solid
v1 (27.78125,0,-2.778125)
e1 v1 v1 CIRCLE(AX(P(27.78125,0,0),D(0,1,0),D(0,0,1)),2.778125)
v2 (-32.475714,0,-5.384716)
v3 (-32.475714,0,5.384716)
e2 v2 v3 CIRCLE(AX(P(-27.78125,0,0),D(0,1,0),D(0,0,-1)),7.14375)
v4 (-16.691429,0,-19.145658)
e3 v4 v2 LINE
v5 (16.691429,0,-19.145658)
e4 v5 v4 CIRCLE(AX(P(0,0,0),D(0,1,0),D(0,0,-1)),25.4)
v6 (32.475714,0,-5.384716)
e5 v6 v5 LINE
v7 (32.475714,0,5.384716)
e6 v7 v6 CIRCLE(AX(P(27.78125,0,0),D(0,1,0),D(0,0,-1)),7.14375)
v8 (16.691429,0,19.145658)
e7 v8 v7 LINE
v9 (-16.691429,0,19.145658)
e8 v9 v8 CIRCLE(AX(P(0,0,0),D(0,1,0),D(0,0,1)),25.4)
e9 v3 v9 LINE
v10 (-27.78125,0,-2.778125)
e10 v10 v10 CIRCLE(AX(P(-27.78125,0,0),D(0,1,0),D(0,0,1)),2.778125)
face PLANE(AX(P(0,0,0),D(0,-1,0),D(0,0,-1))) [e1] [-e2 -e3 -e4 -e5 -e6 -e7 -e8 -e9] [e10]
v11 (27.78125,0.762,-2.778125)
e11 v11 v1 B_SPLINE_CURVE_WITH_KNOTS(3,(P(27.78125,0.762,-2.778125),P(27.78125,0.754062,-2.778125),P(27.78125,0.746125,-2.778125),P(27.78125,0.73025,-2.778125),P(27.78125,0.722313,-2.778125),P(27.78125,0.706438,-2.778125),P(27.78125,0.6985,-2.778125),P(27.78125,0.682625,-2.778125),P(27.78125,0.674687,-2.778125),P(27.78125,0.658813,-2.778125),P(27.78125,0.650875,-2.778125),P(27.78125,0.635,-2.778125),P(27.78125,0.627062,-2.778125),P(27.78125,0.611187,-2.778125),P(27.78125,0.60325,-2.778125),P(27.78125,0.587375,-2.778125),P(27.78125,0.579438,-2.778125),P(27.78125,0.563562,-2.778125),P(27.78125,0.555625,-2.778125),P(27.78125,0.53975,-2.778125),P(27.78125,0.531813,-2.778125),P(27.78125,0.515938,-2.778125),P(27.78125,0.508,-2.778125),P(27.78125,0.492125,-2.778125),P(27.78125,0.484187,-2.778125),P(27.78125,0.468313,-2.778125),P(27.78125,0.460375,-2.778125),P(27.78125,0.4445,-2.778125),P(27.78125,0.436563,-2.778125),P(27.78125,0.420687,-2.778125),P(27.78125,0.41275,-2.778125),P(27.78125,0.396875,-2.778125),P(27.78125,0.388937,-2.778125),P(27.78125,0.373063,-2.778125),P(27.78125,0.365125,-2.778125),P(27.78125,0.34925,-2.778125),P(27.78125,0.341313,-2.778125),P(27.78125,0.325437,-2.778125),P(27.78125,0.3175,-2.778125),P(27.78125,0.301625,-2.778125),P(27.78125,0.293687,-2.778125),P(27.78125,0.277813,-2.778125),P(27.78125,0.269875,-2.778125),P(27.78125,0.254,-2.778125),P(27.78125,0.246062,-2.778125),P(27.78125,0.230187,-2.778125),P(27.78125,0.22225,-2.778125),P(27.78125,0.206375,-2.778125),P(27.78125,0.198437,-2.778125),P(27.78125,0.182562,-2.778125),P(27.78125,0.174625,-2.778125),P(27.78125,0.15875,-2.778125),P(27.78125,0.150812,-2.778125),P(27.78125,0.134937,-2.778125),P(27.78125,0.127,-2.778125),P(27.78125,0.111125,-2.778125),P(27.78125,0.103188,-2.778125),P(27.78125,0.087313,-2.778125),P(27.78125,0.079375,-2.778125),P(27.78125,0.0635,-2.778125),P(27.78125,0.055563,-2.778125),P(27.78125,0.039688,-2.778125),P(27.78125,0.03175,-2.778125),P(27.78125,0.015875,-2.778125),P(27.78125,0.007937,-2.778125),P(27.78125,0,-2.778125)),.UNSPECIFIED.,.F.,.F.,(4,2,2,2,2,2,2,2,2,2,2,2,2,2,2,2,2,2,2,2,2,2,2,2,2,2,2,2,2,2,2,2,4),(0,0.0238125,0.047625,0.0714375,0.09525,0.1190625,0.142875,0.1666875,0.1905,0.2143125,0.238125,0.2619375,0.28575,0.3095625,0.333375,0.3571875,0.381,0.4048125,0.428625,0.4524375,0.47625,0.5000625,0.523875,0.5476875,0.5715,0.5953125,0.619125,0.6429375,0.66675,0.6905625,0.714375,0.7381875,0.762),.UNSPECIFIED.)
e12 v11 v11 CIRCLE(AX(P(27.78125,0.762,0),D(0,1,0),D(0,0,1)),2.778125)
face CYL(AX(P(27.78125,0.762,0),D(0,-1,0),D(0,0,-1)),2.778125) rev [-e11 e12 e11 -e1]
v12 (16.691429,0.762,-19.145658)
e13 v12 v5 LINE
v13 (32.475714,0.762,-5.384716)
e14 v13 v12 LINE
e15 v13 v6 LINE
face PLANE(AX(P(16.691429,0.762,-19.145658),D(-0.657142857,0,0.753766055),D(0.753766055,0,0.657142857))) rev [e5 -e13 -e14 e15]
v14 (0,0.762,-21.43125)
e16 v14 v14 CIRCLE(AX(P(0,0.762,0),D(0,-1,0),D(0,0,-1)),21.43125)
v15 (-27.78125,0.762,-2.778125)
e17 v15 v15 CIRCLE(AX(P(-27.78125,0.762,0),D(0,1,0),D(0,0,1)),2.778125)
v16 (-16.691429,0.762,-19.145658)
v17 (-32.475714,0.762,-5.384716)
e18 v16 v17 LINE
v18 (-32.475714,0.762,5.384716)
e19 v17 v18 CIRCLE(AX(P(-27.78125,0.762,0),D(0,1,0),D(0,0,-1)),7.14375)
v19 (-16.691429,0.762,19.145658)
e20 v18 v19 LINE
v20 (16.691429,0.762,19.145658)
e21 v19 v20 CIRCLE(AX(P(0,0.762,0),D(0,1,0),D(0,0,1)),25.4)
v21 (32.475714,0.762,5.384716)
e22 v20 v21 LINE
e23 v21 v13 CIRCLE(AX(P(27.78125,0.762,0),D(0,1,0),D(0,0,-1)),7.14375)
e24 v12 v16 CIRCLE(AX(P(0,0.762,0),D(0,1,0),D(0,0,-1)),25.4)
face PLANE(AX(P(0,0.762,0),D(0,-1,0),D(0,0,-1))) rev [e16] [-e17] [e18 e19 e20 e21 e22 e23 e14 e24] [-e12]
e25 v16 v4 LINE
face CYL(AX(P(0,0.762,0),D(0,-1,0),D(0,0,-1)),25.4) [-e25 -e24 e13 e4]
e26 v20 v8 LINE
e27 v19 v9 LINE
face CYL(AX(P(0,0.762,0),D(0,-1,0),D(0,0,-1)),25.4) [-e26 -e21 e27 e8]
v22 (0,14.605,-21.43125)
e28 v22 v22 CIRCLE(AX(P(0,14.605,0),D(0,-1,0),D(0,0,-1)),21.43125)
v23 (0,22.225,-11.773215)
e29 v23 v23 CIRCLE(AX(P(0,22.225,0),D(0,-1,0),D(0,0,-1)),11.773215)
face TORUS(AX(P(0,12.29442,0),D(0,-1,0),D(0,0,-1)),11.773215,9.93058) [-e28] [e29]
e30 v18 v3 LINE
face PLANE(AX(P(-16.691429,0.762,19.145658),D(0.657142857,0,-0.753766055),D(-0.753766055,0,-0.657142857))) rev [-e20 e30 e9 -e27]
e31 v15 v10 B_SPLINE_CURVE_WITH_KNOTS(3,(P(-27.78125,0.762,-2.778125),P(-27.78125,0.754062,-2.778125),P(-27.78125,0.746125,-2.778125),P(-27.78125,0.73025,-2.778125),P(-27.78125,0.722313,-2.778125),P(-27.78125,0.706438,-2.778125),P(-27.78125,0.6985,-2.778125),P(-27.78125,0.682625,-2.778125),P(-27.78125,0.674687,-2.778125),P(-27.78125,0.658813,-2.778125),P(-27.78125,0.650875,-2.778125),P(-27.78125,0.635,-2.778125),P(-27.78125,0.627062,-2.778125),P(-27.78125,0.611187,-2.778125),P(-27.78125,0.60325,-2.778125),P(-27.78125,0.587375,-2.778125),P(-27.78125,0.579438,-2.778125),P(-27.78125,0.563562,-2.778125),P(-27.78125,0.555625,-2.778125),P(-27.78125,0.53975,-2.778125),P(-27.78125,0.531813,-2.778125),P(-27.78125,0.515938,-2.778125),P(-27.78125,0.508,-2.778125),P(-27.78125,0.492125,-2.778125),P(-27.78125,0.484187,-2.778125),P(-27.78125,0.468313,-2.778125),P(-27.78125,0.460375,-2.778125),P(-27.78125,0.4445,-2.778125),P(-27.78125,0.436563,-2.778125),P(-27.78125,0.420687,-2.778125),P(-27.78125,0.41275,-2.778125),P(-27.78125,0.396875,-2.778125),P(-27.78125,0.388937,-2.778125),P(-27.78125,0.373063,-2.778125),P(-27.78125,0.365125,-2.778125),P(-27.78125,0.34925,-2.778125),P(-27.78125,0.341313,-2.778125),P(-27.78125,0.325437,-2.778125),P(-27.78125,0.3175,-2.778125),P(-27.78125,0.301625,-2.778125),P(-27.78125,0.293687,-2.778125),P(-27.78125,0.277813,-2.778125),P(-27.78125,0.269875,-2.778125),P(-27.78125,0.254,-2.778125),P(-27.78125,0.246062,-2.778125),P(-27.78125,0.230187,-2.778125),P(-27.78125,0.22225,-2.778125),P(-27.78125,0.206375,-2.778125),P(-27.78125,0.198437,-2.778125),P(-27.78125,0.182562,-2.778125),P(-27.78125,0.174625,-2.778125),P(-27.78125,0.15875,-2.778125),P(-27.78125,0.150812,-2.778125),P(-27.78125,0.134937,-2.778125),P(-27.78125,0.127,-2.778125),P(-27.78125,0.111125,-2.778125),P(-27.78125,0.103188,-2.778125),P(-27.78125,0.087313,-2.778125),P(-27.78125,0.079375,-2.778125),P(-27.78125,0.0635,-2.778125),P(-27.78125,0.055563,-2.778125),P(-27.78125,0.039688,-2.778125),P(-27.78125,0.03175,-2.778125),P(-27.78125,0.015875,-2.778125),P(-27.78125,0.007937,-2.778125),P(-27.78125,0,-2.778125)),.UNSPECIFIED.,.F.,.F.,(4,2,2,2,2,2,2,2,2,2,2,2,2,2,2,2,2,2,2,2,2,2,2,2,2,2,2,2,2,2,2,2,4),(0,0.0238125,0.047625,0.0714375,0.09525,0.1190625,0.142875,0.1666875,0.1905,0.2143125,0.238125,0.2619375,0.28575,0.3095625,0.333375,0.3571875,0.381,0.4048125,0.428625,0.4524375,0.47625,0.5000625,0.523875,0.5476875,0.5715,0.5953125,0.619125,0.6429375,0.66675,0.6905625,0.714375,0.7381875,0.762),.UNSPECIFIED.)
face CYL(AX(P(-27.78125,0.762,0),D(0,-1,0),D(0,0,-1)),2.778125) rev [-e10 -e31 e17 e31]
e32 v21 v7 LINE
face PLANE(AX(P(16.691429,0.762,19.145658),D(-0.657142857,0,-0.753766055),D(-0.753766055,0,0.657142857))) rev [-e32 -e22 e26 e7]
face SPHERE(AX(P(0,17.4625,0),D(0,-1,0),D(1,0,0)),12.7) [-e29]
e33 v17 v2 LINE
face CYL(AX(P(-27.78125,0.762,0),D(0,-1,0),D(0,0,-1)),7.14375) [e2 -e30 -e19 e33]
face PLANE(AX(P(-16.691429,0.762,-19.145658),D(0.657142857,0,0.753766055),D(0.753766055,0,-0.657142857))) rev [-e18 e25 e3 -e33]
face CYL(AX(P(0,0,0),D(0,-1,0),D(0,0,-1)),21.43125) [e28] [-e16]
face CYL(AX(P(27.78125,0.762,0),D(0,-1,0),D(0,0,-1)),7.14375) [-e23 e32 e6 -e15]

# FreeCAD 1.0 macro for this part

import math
import FreeCAD as App
import Part
import Sketcher
Q = App.Units.Quantity

doc = App.newDocument("Part")
body = doc.addObject("PartDesign::Body", "Body")

# Sketch on XZ plane
sketch1 = body.newObject("Sketcher::SketchObject", "Sketch")
sketch1.AttachmentSupport = (doc.getObject("XZ_Plane"), [""])
sketch1.MapMode = "FlatFace"
sketch1.addGeometry(Part.LineSegment(App.Vector(-16.7, -19.1, 0), App.Vector(-32.5, -5.4, 0)), False)
sketch1.addGeometry(Part.ArcOfCircle(Part.Circle(App.Vector(-27.8, 0, 0), App.Vector(0, 0, 1), 7.1), math.radians(131), math.radians(229)), False)
sketch1.addGeometry(Part.LineSegment(App.Vector(-32.5, 5.4, 0), App.Vector(-16.7, 19.1, 0)), False)
sketch1.addGeometry(Part.ArcOfCircle(Part.Circle(App.Vector(0, 0, 0), App.Vector(0, 0, 1), 25.4), math.radians(49), math.radians(131)), False)
sketch1.addGeometry(Part.LineSegment(App.Vector(16.7, 19.1, 0), App.Vector(32.5, 5.4, 0)), False)
sketch1.addGeometry(Part.ArcOfCircle(Part.Circle(App.Vector(27.8, 0, 0), App.Vector(0, 0, 1), 7.1), math.radians(-49), math.radians(49)), False)
sketch1.addGeometry(Part.LineSegment(App.Vector(32.5, -5.4, 0), App.Vector(16.7, -19.1, 0)), False)
sketch1.addGeometry(Part.ArcOfCircle(Part.Circle(App.Vector(0, 0, 0), App.Vector(0, 0, 1), 25.4), math.radians(-131), math.radians(-49)), False)
sketch1.addGeometry(Part.Circle(App.Vector(-27.8, 0, 0), App.Vector(0, 0, 1), 2.8), False)
sketch1.addGeometry(Part.Circle(App.Vector(27.8, 0, 0), App.Vector(0, 0, 1), 2.8), False)
sketch1.addConstraint(Sketcher.Constraint("Tangent", 0, 2, 1, 2))
sketch1.addConstraint(Sketcher.Constraint("Tangent", 1, 1, 2, 1))
sketch1.addConstraint(Sketcher.Constraint("Tangent", 2, 2, 3, 2))
sketch1.addConstraint(Sketcher.Constraint("Tangent", 3, 1, 4, 1))
sketch1.addConstraint(Sketcher.Constraint("Tangent", 4, 2, 5, 2))
sketch1.addConstraint(Sketcher.Constraint("Tangent", 5, 1, 6, 1))
sketch1.addConstraint(Sketcher.Constraint("Tangent", 6, 2, 7, 2))
sketch1.addConstraint(Sketcher.Constraint("Tangent", 7, 1, 0, 1))
sketch1.addConstraint(Sketcher.Constraint("Coincident", 3, 3, -1, 1))
sketch1.addConstraint(Sketcher.Constraint("Coincident", 7, 3, -1, 1))
sketch1.addConstraint(Sketcher.Constraint("Coincident", 8, 3, 1, 3))
sketch1.addConstraint(Sketcher.Constraint("Coincident", 9, 3, 5, 3))
sketch1.addConstraint(Sketcher.Constraint("Equal", 1, 5))
sketch1.addConstraint(Sketcher.Constraint("Equal", 3, 7))
sketch1.addConstraint(Sketcher.Constraint("Equal", 8, 9))
sketch1.addConstraint(Sketcher.Constraint("Symmetric", 1, 3, 5, 3, -1, 1))
sketch1.addConstraint(Sketcher.Constraint("PointOnObject", 1, 3, -1))
sketch1.addConstraint(Sketcher.Constraint("Radius", 3, Q("1 in")))
sketch1.addConstraint(Sketcher.Constraint("Diameter", 8, Q("0.21875 in")))
sketch1.addConstraint(Sketcher.Constraint("Radius", 1, Q("0.28125 in")))
sketch1.addConstraint(Sketcher.Constraint("DistanceX", 1, 3, -1, 1, Q("1.09375 in")))
pad1 = body.newObject("PartDesign::Pad", "Pad")
pad1.Profile = sketch1
pad1.Length = Q("0.03 in")
pad1.Reversed = True

# Sketch on XY plane
sketch2 = body.newObject("Sketcher::SketchObject", "Sketch001")
sketch2.AttachmentSupport = (doc.getObject("XY_Plane"), [""])
sketch2.MapMode = "FlatFace"
sketch2.addGeometry(Part.LineSegment(App.Vector(21, 0, 0), App.Vector(21, 15, 0)), False)
sketch2.addGeometry(Part.ArcOfCircle(Part.Circle(App.Vector(12, 12, 0), App.Vector(0, 0, 1), 10), math.radians(13), math.radians(90)), False)
sketch2.addGeometry(Part.ArcOfCircle(Part.Circle(App.Vector(0, 17, 0), App.Vector(0, 0, 1), 13), math.radians(22), math.radians(90)), False)
sketch2.addGeometry(Part.LineSegment(App.Vector(0, 30, 0), App.Vector(0, 0, 0)), False)
sketch2.addGeometry(Part.LineSegment(App.Vector(0, 0, 0), App.Vector(21, 0, 0)), False)
sketch2.addConstraint(Sketcher.Constraint("Coincident", 0, 2, 1, 1))
sketch2.addConstraint(Sketcher.Constraint("Coincident", 1, 2, 2, 1))
sketch2.addConstraint(Sketcher.Constraint("Coincident", 2, 2, 3, 1))
sketch2.addConstraint(Sketcher.Constraint("Coincident", 3, 2, 4, 1))
sketch2.addConstraint(Sketcher.Constraint("Coincident", 4, 2, 0, 1))
sketch2.addConstraint(Sketcher.Constraint("Vertical", 0))
sketch2.addConstraint(Sketcher.Constraint("Vertical", 3))
sketch2.addConstraint(Sketcher.Constraint("Horizontal", 4))
sketch2.addConstraint(Sketcher.Constraint("Coincident", 3, 2, -1, 1))
sketch2.addConstraint(Sketcher.Constraint("PointOnObject", 2, 3, -2))
sketch2.addConstraint(Sketcher.Constraint("Radius", 2, Q("0.5 in")))
sketch2.addConstraint(Sketcher.Constraint("DistanceY", 0, 2, 1, 2, Q("0.3 in")))
sketch2.addConstraint(Sketcher.Constraint("DistanceX", 4, 1, 4, 2, Q("0.84375 in")))
sketch2.addConstraint(Sketcher.Constraint("DistanceY", 0, 1, 0, 2, Q("0.575 in")))
sketch2.addConstraint(Sketcher.Constraint("DistanceY", 3, 2, 3, 1, Q("1.1875 in")))
sketch2.addConstraint(Sketcher.Constraint("Radius", 1, Q("9.93058 mm")))
revolution = body.newObject("PartDesign::Revolution", "Revolution")
revolution.Profile = sketch2
revolution.ReferenceAxis = (sketch2, ["V_Axis"])
revolution.Angle = 360

doc.recompute()
